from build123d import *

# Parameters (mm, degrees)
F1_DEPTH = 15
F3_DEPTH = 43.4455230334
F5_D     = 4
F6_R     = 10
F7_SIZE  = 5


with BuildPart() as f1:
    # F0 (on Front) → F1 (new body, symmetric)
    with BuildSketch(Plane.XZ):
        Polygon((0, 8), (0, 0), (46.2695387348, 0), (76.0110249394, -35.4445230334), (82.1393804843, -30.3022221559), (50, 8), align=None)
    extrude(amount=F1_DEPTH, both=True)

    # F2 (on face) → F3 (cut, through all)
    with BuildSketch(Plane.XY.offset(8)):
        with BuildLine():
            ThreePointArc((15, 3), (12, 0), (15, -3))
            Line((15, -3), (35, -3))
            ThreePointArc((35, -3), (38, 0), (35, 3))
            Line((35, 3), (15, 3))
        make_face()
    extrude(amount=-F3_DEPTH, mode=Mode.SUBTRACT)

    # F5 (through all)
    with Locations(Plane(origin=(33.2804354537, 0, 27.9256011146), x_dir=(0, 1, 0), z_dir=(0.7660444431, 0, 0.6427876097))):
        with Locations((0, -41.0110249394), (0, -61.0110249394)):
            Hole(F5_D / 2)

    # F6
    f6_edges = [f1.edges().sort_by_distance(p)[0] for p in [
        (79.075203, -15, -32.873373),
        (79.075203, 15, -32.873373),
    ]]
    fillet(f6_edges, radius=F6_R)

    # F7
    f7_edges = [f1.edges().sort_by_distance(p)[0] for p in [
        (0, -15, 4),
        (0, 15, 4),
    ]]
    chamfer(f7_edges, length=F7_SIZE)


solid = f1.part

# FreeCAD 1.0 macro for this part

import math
import FreeCAD as App
import Part
import Sketcher
from FreeCAD import Vector
Q = App.Units.Quantity


def edges_at(feature, points):
    """Names of the edges that pass closest to the given points."""
    edges = feature.Shape.Edges
    near = lambda p: min(range(len(edges)), key=lambda i: edges[i].distToShape(Part.Vertex(*p))[0])
    return sorted({f"Edge{near(p) + 1}" for p in points})


def add_polygon(sketch, points):
    """Adds a closed chain of lines whose ends are joined by coincident constraints."""
    first, n = sketch.GeometryCount, len(points)
    for a, b in zip(points, points[1:] + points[:1]):
        sketch.addGeometry(Part.LineSegment(App.Vector(*a, 0), App.Vector(*b, 0)), False)
    for i in range(n):
        sketch.addConstraint(Sketcher.Constraint("Coincident", first + i, 2, first + (i + 1) % n, 1))

doc = App.newDocument("Part")
body = doc.addObject("PartDesign::Body", "Body")

sketch1 = body.newObject("Sketcher::SketchObject", "Sketch")
sketch1.AttachmentSupport = (doc.getObject("XZ_Plane"), [""])
sketch1.MapMode = "FlatFace"
add_polygon(sketch1, [(0, 8), (0, 0), (46, 0), (76, -35), (82, -30), (50, 8)])
sketch1.addConstraint(Sketcher.Constraint("Vertical", 0))
sketch1.addConstraint(Sketcher.Constraint("Horizontal", 1))
sketch1.addConstraint(Sketcher.Constraint("Horizontal", 5))
sketch1.addConstraint(Sketcher.Constraint("Coincident", 0, 2, -1, 1))
sketch1.addConstraint(Sketcher.Constraint("Perpendicular", 2, 3))
sketch1.addConstraint(Sketcher.Constraint("Perpendicular", 3, 4))
sketch1.addConstraint(Sketcher.Constraint("DistanceX", 5, 2, 5, 1, Q("50 mm")))
sketch1.addConstraint(Sketcher.Constraint("DistanceY", 0, 2, 0, 1, Q("8 mm")))
sketch1.addConstraint(Sketcher.Constraint("Angle", 2, Q("-50 deg")))
sketch1.addConstraint(Sketcher.Constraint("Distance", 3, Q("8 mm")))
sketch1.addConstraint(Sketcher.Constraint("Distance", 4, Q("50 mm")))
pad1 = body.newObject("PartDesign::Pad", "Pad")
pad1.Profile = sketch1
pad1.Length = 30
pad1.Midplane = True

sketch2 = body.newObject("Sketcher::SketchObject", "Sketch001")
sketch2.AttachmentSupport = (doc.getObject("XY_Plane"), [""])
sketch2.MapMode = "FlatFace"
sketch2.AttachmentOffset = App.Placement(Vector(0, 0, 8), App.Rotation())
sketch2.addGeometry(Part.ArcOfCircle(Part.Circle(Vector(15, 0, 0), Vector(0, 0, 1), 3), math.radians(90), math.radians(270)), False)
sketch2.addGeometry(Part.LineSegment(Vector(15, -3, 0), Vector(35, -3, 0)), False)
sketch2.addGeometry(Part.ArcOfCircle(Part.Circle(Vector(35, 0, 0), Vector(0, 0, 1), 3), math.radians(-90), math.radians(90)), False)
sketch2.addGeometry(Part.LineSegment(Vector(35, 3, 0), Vector(15, 3, 0)), False)
sketch2.addConstraint(Sketcher.Constraint("Tangent", 0, 2, 1, 1))
sketch2.addConstraint(Sketcher.Constraint("Tangent", 1, 2, 2, 1))
sketch2.addConstraint(Sketcher.Constraint("Tangent", 2, 2, 3, 1))
sketch2.addConstraint(Sketcher.Constraint("Tangent", 3, 2, 0, 1))
sketch2.addConstraint(Sketcher.Constraint("Horizontal", 1))
sketch2.addConstraint(Sketcher.Constraint("Horizontal", 3))
sketch2.addConstraint(Sketcher.Constraint("PointOnObject", 0, 3, -1))
sketch2.addConstraint(Sketcher.Constraint("Radius", 0, Q("3 mm")))
sketch2.addConstraint(Sketcher.Constraint("DistanceX", 1, 1, 1, 2, Q("20 mm")))
sketch2.addConstraint(Sketcher.Constraint("DistanceX", -1, 1, 0, 3, Q("15 mm")))
pocket1 = body.newObject("PartDesign::Pocket", "Pocket")
pocket1.Profile = sketch2
pocket1.Type = "ThroughAll"

sketch3 = body.newObject("Sketcher::SketchObject", "Sketch002")
sketch3.Placement = App.Placement(Vector(33.280435, 0, 27.925601), App.Rotation(Vector(0, 1, 0), Vector(-0.64278761, 0, 0.766044443), Vector(0.766044443, 0, 0.64278761), "ZXY"))
sketch3.addGeometry(Part.Circle(Vector(0, -41, 0), Vector(0, 0, 1), 2), False)
sketch3.addGeometry(Part.Circle(Vector(0, -61, 0), Vector(0, 0, 1), 2), False)
sketch3.addConstraint(Sketcher.Constraint("Equal", 0, 1))
sketch3.addConstraint(Sketcher.Constraint("PointOnObject", 0, 3, -2))
sketch3.addConstraint(Sketcher.Constraint("PointOnObject", 1, 3, -2))
sketch3.addConstraint(Sketcher.Constraint("Diameter", 0, Q("4 mm")))
sketch3.addConstraint(Sketcher.Constraint("DistanceY", 1, 3, 0, 3, Q("20 mm")))
sketch3.addConstraint(Sketcher.Constraint("DistanceY", 0, 3, -1, 1, Q("41.011025 mm")))
doc.recompute()
hole = body.newObject("PartDesign::Hole", "Hole")
hole.Profile = sketch3
hole.ThreadType = "None"
hole.Diameter = 4
hole.DepthType = "ThroughAll"
doc.recompute()

fillet = body.newObject("PartDesign::Fillet", "Fillet")
fillet.Base = (hole, edges_at(hole, [(79.075, -15, -32.873), (79.075, 15, -32.873)]))
fillet.Radius = 10
doc.recompute()

chamfer = body.newObject("PartDesign::Chamfer", "Chamfer")
chamfer.Base = (fillet, edges_at(fillet, [(0, -15, 4), (0, 15, 4)]))
chamfer.Size = 5

doc.recompute()
